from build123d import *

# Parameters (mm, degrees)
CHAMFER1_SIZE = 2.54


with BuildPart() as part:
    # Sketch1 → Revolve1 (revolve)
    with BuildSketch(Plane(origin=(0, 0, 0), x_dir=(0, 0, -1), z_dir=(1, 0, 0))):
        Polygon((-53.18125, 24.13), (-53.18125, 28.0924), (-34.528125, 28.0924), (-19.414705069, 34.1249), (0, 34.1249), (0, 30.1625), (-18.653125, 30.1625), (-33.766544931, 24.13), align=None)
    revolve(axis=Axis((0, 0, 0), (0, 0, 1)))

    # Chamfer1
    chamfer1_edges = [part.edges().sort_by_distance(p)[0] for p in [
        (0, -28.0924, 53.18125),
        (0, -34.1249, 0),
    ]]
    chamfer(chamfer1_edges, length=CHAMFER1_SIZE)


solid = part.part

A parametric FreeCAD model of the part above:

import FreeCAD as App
import Part
import Sketcher

V = App.Vector
Q = App.Units.Quantity


def edges_at(feature, points):
    """Names of the edges that pass closest to the given points."""
    edges = feature.Shape.Edges
    near = lambda p: min(range(len(edges)), key=lambda i: edges[i].distToShape(Part.Vertex(*p))[0])
    return sorted({f"Edge{near(p) + 1}" for p in points})

doc = App.newDocument("Part")
params = doc.addObject("Spreadsheet::Sheet", "Params")
for row, (alias, value) in enumerate([
    ("sketch1_width", "0.156 in"),
    ("sketch1_height", "0.734375 in"),
    ("revolution_angle", "360 deg"),
    ("chamfer_size", "0.1 in"),
], start=1):
    params.set(f"A{row}", alias)
    params.set(f"B{row}", "=" + value)
    params.setAlias(f"B{row}", alias)

body = doc.addObject("PartDesign::Body", "Body")

# Sketch on YZ plane
sketch1 = body.newObject("Sketcher::SketchObject", "Sketch")
sketch1.AttachmentSupport = (doc.getObject("YZ_Plane"), [""])
sketch1.MapMode = "FlatFace"
sketch1.addGeometry([
    Part.LineSegment(V(28.1, 53.2, 0), V(24.1, 53.2, 0)),  # 0
    Part.LineSegment(V(24.1, 53.2, 0), V(24.1, 33.8, 0)),  # 1
    Part.LineSegment(V(24.1, 33.8, 0), V(30.2, 18.7, 0)),  # 2
    Part.LineSegment(V(30.2, 18.7, 0), V(30.2, 0, 0)),  # 3
    Part.LineSegment(V(30.2, 0, 0), V(34.1, 0, 0)),  # 4
    Part.LineSegment(V(34.1, 0, 0), V(34.1, 19.4, 0)),  # 5
    Part.LineSegment(V(34.1, 19.4, 0), V(28.1, 34.5, 0)),  # 6
    Part.LineSegment(V(28.1, 34.5, 0), V(28.1, 53.2, 0)),  # 7
], False)
sketch1.addConstraint([
    Sketcher.Constraint("Coincident", 0, 2, 1, 1),
    Sketcher.Constraint("Coincident", 1, 2, 2, 1),
    Sketcher.Constraint("Coincident", 2, 2, 3, 1),
    Sketcher.Constraint("Coincident", 3, 2, 4, 1),
    Sketcher.Constraint("Coincident", 4, 2, 5, 1),
    Sketcher.Constraint("Coincident", 5, 2, 6, 1),
    Sketcher.Constraint("Coincident", 6, 2, 7, 1),
    Sketcher.Constraint("Coincident", 7, 2, 0, 1),
    Sketcher.Constraint("Horizontal", 0),
    Sketcher.Constraint("Vertical", 1),
    Sketcher.Constraint("Vertical", 3),
    Sketcher.Constraint("Horizontal", 4),
    Sketcher.Constraint("Vertical", 5),
    Sketcher.Constraint("Vertical", 7),
    Sketcher.Constraint("PointOnObject", 3, 2, -1),
    Sketcher.Constraint("Parallel", 2, 6),
    Sketcher.Constraint("Equal", 0, 4),
    Sketcher.Constraint("Equal", 1, 5),
    Sketcher.Constraint("DistanceX", 0, 2, 0, 1, Q("0.156 in")),
    Sketcher.Constraint("DistanceY", 3, 2, 3, 1, Q("0.734375 in")),
    Sketcher.Constraint("DistanceX", -1, 1, 0, 2, Q("0.95 in")),
    Sketcher.Constraint("DistanceY", -1, 1, 0, 2, Q("2.09375 in")),
    Sketcher.Constraint("DistanceX", -1, 1, 2, 2, Q("1.1875 in")),
    Sketcher.Constraint("DistanceY", 1, 2, 1, 1, 19.414705),
])
sketch1.setExpression("Constraints[18]", "Params.sketch1_width")
sketch1.setExpression("Constraints[19]", "Params.sketch1_height")
revolution = body.newObject("PartDesign::Revolution", "Revolution")
revolution.Profile = sketch1
revolution.ReferenceAxis = (sketch1, ["V_Axis"])
revolution.setExpression("Angle", "Params.revolution_angle")
doc.recompute()

chamfer = body.newObject("PartDesign::Chamfer", "Chamfer")
chamfer.Base = (revolution, edges_at(revolution, [(0, -28.092, 53.181), (0, -34.125, 0)]))
chamfer.setExpression("Size", "Params.chamfer_size")

doc.recompute()
